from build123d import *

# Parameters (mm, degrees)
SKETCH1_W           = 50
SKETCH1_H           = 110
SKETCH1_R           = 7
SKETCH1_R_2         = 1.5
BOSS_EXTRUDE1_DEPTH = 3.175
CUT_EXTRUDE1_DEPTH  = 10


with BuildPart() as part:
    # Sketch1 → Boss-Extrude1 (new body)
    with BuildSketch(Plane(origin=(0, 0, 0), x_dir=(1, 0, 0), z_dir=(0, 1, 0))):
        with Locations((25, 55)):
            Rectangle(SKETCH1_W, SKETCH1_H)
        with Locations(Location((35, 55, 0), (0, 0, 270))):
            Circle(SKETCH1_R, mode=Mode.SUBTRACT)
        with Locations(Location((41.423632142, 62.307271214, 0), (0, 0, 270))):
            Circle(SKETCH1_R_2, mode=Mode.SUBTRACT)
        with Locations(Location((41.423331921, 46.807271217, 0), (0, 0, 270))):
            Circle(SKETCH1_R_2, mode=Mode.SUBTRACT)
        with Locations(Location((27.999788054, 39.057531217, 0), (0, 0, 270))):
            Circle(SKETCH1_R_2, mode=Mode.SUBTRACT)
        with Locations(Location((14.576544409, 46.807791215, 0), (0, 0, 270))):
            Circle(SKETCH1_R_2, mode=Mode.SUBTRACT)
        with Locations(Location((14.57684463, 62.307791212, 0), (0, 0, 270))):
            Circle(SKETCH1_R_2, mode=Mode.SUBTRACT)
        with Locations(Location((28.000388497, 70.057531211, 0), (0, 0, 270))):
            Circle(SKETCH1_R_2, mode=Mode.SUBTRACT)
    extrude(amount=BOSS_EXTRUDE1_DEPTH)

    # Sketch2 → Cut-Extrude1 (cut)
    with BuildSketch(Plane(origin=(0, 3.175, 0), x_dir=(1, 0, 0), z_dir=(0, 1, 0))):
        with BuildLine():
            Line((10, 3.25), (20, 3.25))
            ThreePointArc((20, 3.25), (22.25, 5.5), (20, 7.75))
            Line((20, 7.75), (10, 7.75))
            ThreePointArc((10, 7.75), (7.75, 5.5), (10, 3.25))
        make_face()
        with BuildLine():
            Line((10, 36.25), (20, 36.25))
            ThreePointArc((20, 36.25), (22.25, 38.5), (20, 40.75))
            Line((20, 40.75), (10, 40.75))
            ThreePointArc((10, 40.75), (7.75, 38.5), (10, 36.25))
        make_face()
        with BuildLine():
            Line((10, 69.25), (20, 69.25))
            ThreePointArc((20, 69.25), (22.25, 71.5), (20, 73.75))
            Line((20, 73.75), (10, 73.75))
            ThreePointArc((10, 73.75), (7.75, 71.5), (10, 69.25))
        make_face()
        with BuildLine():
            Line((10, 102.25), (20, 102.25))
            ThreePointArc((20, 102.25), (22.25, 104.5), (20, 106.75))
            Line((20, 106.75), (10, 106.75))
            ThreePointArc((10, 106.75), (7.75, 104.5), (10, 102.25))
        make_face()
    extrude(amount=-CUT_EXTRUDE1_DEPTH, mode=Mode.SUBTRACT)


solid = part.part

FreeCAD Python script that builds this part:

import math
import FreeCAD as App
import Part
import Sketcher

V = App.Vector
Q = App.Units.Quantity

doc = App.newDocument("Part")
body = doc.addObject("PartDesign::Body", "Body")

# Sketch on XZ plane
sketch1 = doc.addObject("Sketcher::SketchObject", "Sketch")
body.addObject(sketch1)
sketch1.AttachmentSupport = (doc.XZ_Plane, [""])
sketch1.MapMode = "FlatFace"
sketch1.addGeometry(Part.LineSegment(V(0, -110, 0), V(0, 0, 0)), False)
sketch1.addGeometry(Part.LineSegment(V(0, 0, 0), V(50, 0, 0)), False)
sketch1.addGeometry(Part.LineSegment(V(50, 0, 0), V(50, -110, 0)), False)
sketch1.addGeometry(Part.LineSegment(V(50, -110, 0), V(0, -110, 0)), False)
sketch1.addGeometry(Part.Circle(V(28, -39.1, 0), V(0, 0, 1), 1.5), False)
sketch1.addGeometry(Part.Circle(V(14.6, -46.8, 0), V(0, 0, 1), 1.5), False)
sketch1.addGeometry(Part.Circle(V(41.4, -46.8, 0), V(0, 0, 1), 1.5), False)
sketch1.addGeometry(Part.Circle(V(14.6, -62.3, 0), V(0, 0, 1), 1.5), False)
sketch1.addGeometry(Part.Circle(V(35, -55, 0), V(0, 0, 1), 7), False)
sketch1.addGeometry(Part.Circle(V(41.4, -62.3, 0), V(0, 0, 1), 1.5), False)
sketch1.addGeometry(Part.Circle(V(28, -70.1, 0), V(0, 0, 1), 1.5), False)
sketch1.addConstraint(Sketcher.Constraint("Coincident", 0, 2, 1, 1))
sketch1.addConstraint(Sketcher.Constraint("Coincident", 1, 2, 2, 1))
sketch1.addConstraint(Sketcher.Constraint("Coincident", 2, 2, 3, 1))
sketch1.addConstraint(Sketcher.Constraint("Coincident", 3, 2, 0, 1))
sketch1.addConstraint(Sketcher.Constraint("Vertical", 0))
sketch1.addConstraint(Sketcher.Constraint("Horizontal", 1))
sketch1.addConstraint(Sketcher.Constraint("Vertical", 2))
sketch1.addConstraint(Sketcher.Constraint("Horizontal", 3))
sketch1.addConstraint(Sketcher.Constraint("Coincident", 0, 2, -1, 1))
sketch1.addConstraint(Sketcher.Constraint("Equal", 4, 5))
sketch1.addConstraint(Sketcher.Constraint("Equal", 5, 6))
sketch1.addConstraint(Sketcher.Constraint("Equal", 6, 7))
sketch1.addConstraint(Sketcher.Constraint("Equal", 7, 9))
sketch1.addConstraint(Sketcher.Constraint("Equal", 9, 10))
sketch1.addConstraint(Sketcher.Constraint("Diameter", 4, Q("3 mm")))
sketch1.addConstraint(Sketcher.Constraint("Diameter", 8, Q("14 mm")))
sketch1.addConstraint(Sketcher.Constraint("DistanceX", 1, 1, 1, 2, Q("50 mm")))
sketch1.addConstraint(Sketcher.Constraint("DistanceY", 0, 1, 0, 2, Q("110 mm")))
sketch1.addConstraint(Sketcher.Constraint("DistanceX", -1, 1, 8, 3, Q("35 mm")))
sketch1.addConstraint(Sketcher.Constraint("DistanceY", 8, 3, -1, 1, Q("55 mm")))
sketch1.addConstraint(Sketcher.Constraint("DistanceY", 7, 3, 5, 3, Q("15.5 mm")))
sketch1.addConstraint(Sketcher.Constraint("DistanceY", 9, 3, 6, 3, Q("15.5 mm")))
sketch1.addConstraint(Sketcher.Constraint("DistanceX", 5, 3, 7, 3, Q("0.0003 mm")))
sketch1.addConstraint(Sketcher.Constraint("DistanceX", 6, 3, 9, 3, Q("0.0003 mm")))
sketch1.addConstraint(Sketcher.Constraint("DistanceX", -1, 1, 4, 3, Q("27.999788 mm")))
sketch1.addConstraint(Sketcher.Constraint("DistanceY", 4, 3, -1, 1, Q("39.057531 mm")))
sketch1.addConstraint(Sketcher.Constraint("DistanceY", 5, 3, -1, 1, Q("46.807791 mm")))
sketch1.addConstraint(Sketcher.Constraint("DistanceX", -1, 1, 6, 3, Q("41.423332 mm")))
sketch1.addConstraint(Sketcher.Constraint("DistanceY", 6, 3, -1, 1, Q("46.807271 mm")))
sketch1.addConstraint(Sketcher.Constraint("DistanceX", -1, 1, 10, 3, Q("28.000388 mm")))
sketch1.addConstraint(Sketcher.Constraint("DistanceY", 10, 3, -1, 1, Q("70.057531 mm")))
sketch1.addConstraint(Sketcher.Constraint("DistanceX", -1, 1, 5, 3, Q("14.576544 mm")))
pad1 = doc.addObject("PartDesign::Pad", "Pad")
body.addObject(pad1)
pad1.Profile = sketch1
pad1.Length = 3.175
pad1.Reversed = True

# Sketch on XZ plane
sketch2 = doc.addObject("Sketcher::SketchObject", "Sketch001")
body.addObject(sketch2)
sketch2.AttachmentSupport = (doc.XZ_Plane, [""])
sketch2.MapMode = "FlatFace"
sketch2.AttachmentOffset = App.Placement(V(0, 0, -3.175), App.Rotation())
sketch2.addGeometry(Part.LineSegment(V(10, -3.2, 0), V(20, -3.2, 0)), False)
sketch2.addGeometry(Part.ArcOfCircle(Part.Circle(V(20, -5.5, 0), V(0, 0, 1), 2.2), math.radians(-90), math.radians(90)), False)
sketch2.addGeometry(Part.LineSegment(V(20, -7.8, 0), V(10, -7.8, 0)), False)
sketch2.addGeometry(Part.ArcOfCircle(Part.Circle(V(10, -5.5, 0), V(0, 0, 1), 2.2), math.radians(90), math.radians(270)), False)
sketch2.addGeometry(Part.LineSegment(V(10, -36.2, 0), V(20, -36.2, 0)), False)
sketch2.addGeometry(Part.ArcOfCircle(Part.Circle(V(20, -38.5, 0), V(0, 0, 1), 2.2), math.radians(-90), math.radians(90)), False)
sketch2.addGeometry(Part.LineSegment(V(20, -40.8, 0), V(10, -40.8, 0)), False)
sketch2.addGeometry(Part.ArcOfCircle(Part.Circle(V(10, -38.5, 0), V(0, 0, 1), 2.2), math.radians(90), math.radians(270)), False)
sketch2.addGeometry(Part.LineSegment(V(10, -69.2, 0), V(20, -69.2, 0)), False)
sketch2.addGeometry(Part.ArcOfCircle(Part.Circle(V(20, -71.5, 0), V(0, 0, 1), 2.2), math.radians(-90), math.radians(90)), False)
sketch2.addGeometry(Part.LineSegment(V(20, -73.8, 0), V(10, -73.8, 0)), False)
sketch2.addGeometry(Part.ArcOfCircle(Part.Circle(V(10, -71.5, 0), V(0, 0, 1), 2.2), math.radians(90), math.radians(270)), False)
sketch2.addGeometry(Part.LineSegment(V(10, -102.2, 0), V(20, -102.2, 0)), False)
sketch2.addGeometry(Part.ArcOfCircle(Part.Circle(V(20, -104.5, 0), V(0, 0, 1), 2.2), math.radians(-90), math.radians(90)), False)
sketch2.addGeometry(Part.LineSegment(V(20, -106.8, 0), V(10, -106.8, 0)), False)
sketch2.addGeometry(Part.ArcOfCircle(Part.Circle(V(10, -104.5, 0), V(0, 0, 1), 2.2), math.radians(90), math.radians(270)), False)
sketch2.addConstraint(Sketcher.Constraint("Tangent", 0, 2, 1, 2))
sketch2.addConstraint(Sketcher.Constraint("Tangent", 1, 1, 2, 1))
sketch2.addConstraint(Sketcher.Constraint("Tangent", 2, 2, 3, 2))
sketch2.addConstraint(Sketcher.Constraint("Tangent", 3, 1, 0, 1))
sketch2.addConstraint(Sketcher.Constraint("Tangent", 4, 2, 5, 2))
sketch2.addConstraint(Sketcher.Constraint("Tangent", 5, 1, 6, 1))
sketch2.addConstraint(Sketcher.Constraint("Tangent", 6, 2, 7, 2))
sketch2.addConstraint(Sketcher.Constraint("Tangent", 7, 1, 4, 1))
sketch2.addConstraint(Sketcher.Constraint("Tangent", 8, 2, 9, 2))
sketch2.addConstraint(Sketcher.Constraint("Tangent", 9, 1, 10, 1))
sketch2.addConstraint(Sketcher.Constraint("Tangent", 10, 2, 11, 2))
sketch2.addConstraint(Sketcher.Constraint("Tangent", 11, 1, 8, 1))
sketch2.addConstraint(Sketcher.Constraint("Tangent", 12, 2, 13, 2))
sketch2.addConstraint(Sketcher.Constraint("Tangent", 13, 1, 14, 1))
sketch2.addConstraint(Sketcher.Constraint("Tangent", 14, 2, 15, 2))
sketch2.addConstraint(Sketcher.Constraint("Tangent", 15, 1, 12, 1))
sketch2.addConstraint(Sketcher.Constraint("Horizontal", 0))
sketch2.addConstraint(Sketcher.Constraint("Horizontal", 2))
sketch2.addConstraint(Sketcher.Constraint("Horizontal", 4))
sketch2.addConstraint(Sketcher.Constraint("Horizontal", 6))
sketch2.addConstraint(Sketcher.Constraint("Horizontal", 8))
sketch2.addConstraint(Sketcher.Constraint("Horizontal", 10))
sketch2.addConstraint(Sketcher.Constraint("Horizontal", 12))
sketch2.addConstraint(Sketcher.Constraint("Horizontal", 14))
sketch2.addConstraint(Sketcher.Constraint("Equal", 3, 5))
sketch2.addConstraint(Sketcher.Constraint("Equal", 7, 9))
sketch2.addConstraint(Sketcher.Constraint("Equal", 11, 13))
sketch2.addConstraint(Sketcher.Constraint("Vertical", 1, 3, 5, 3))
sketch2.addConstraint(Sketcher.Constraint("Vertical", 3, 3, 7, 3))
sketch2.addConstraint(Sketcher.Constraint("Vertical", 5, 3, 9, 3))
sketch2.addConstraint(Sketcher.Constraint("Vertical", 7, 3, 11, 3))
sketch2.addConstraint(Sketcher.Constraint("Vertical", 9, 3, 13, 3))
sketch2.addConstraint(Sketcher.Constraint("Vertical", 11, 3, 15, 3))
sketch2.addConstraint(Sketcher.Constraint("DistanceX", 0, 1, 0, 2, Q("10 mm")))
sketch2.addConstraint(Sketcher.Constraint("Radius", 1, Q("2.25 mm")))
sketch2.addConstraint(Sketcher.Constraint("DistanceX", -1, 1, 1, 3, Q("20 mm")))
sketch2.addConstraint(Sketcher.Constraint("DistanceY", 5, 3, 1, 3, Q("33 mm")))
sketch2.addConstraint(Sketcher.Constraint("DistanceY", 9, 3, 5, 3, Q("33 mm")))
sketch2.addConstraint(Sketcher.Constraint("DistanceY", 13, 3, 9, 3, Q("33 mm")))
sketch2.addConstraint(Sketcher.Constraint("DistanceY", 1, 3, -1, 1, Q("5.5 mm")))
pocket1 = doc.addObject("PartDesign::Pocket", "Pocket")
body.addObject(pocket1)
pocket1.Profile = sketch2
pocket1.Length = 10
pocket1.Reversed = True

doc.recompute()
